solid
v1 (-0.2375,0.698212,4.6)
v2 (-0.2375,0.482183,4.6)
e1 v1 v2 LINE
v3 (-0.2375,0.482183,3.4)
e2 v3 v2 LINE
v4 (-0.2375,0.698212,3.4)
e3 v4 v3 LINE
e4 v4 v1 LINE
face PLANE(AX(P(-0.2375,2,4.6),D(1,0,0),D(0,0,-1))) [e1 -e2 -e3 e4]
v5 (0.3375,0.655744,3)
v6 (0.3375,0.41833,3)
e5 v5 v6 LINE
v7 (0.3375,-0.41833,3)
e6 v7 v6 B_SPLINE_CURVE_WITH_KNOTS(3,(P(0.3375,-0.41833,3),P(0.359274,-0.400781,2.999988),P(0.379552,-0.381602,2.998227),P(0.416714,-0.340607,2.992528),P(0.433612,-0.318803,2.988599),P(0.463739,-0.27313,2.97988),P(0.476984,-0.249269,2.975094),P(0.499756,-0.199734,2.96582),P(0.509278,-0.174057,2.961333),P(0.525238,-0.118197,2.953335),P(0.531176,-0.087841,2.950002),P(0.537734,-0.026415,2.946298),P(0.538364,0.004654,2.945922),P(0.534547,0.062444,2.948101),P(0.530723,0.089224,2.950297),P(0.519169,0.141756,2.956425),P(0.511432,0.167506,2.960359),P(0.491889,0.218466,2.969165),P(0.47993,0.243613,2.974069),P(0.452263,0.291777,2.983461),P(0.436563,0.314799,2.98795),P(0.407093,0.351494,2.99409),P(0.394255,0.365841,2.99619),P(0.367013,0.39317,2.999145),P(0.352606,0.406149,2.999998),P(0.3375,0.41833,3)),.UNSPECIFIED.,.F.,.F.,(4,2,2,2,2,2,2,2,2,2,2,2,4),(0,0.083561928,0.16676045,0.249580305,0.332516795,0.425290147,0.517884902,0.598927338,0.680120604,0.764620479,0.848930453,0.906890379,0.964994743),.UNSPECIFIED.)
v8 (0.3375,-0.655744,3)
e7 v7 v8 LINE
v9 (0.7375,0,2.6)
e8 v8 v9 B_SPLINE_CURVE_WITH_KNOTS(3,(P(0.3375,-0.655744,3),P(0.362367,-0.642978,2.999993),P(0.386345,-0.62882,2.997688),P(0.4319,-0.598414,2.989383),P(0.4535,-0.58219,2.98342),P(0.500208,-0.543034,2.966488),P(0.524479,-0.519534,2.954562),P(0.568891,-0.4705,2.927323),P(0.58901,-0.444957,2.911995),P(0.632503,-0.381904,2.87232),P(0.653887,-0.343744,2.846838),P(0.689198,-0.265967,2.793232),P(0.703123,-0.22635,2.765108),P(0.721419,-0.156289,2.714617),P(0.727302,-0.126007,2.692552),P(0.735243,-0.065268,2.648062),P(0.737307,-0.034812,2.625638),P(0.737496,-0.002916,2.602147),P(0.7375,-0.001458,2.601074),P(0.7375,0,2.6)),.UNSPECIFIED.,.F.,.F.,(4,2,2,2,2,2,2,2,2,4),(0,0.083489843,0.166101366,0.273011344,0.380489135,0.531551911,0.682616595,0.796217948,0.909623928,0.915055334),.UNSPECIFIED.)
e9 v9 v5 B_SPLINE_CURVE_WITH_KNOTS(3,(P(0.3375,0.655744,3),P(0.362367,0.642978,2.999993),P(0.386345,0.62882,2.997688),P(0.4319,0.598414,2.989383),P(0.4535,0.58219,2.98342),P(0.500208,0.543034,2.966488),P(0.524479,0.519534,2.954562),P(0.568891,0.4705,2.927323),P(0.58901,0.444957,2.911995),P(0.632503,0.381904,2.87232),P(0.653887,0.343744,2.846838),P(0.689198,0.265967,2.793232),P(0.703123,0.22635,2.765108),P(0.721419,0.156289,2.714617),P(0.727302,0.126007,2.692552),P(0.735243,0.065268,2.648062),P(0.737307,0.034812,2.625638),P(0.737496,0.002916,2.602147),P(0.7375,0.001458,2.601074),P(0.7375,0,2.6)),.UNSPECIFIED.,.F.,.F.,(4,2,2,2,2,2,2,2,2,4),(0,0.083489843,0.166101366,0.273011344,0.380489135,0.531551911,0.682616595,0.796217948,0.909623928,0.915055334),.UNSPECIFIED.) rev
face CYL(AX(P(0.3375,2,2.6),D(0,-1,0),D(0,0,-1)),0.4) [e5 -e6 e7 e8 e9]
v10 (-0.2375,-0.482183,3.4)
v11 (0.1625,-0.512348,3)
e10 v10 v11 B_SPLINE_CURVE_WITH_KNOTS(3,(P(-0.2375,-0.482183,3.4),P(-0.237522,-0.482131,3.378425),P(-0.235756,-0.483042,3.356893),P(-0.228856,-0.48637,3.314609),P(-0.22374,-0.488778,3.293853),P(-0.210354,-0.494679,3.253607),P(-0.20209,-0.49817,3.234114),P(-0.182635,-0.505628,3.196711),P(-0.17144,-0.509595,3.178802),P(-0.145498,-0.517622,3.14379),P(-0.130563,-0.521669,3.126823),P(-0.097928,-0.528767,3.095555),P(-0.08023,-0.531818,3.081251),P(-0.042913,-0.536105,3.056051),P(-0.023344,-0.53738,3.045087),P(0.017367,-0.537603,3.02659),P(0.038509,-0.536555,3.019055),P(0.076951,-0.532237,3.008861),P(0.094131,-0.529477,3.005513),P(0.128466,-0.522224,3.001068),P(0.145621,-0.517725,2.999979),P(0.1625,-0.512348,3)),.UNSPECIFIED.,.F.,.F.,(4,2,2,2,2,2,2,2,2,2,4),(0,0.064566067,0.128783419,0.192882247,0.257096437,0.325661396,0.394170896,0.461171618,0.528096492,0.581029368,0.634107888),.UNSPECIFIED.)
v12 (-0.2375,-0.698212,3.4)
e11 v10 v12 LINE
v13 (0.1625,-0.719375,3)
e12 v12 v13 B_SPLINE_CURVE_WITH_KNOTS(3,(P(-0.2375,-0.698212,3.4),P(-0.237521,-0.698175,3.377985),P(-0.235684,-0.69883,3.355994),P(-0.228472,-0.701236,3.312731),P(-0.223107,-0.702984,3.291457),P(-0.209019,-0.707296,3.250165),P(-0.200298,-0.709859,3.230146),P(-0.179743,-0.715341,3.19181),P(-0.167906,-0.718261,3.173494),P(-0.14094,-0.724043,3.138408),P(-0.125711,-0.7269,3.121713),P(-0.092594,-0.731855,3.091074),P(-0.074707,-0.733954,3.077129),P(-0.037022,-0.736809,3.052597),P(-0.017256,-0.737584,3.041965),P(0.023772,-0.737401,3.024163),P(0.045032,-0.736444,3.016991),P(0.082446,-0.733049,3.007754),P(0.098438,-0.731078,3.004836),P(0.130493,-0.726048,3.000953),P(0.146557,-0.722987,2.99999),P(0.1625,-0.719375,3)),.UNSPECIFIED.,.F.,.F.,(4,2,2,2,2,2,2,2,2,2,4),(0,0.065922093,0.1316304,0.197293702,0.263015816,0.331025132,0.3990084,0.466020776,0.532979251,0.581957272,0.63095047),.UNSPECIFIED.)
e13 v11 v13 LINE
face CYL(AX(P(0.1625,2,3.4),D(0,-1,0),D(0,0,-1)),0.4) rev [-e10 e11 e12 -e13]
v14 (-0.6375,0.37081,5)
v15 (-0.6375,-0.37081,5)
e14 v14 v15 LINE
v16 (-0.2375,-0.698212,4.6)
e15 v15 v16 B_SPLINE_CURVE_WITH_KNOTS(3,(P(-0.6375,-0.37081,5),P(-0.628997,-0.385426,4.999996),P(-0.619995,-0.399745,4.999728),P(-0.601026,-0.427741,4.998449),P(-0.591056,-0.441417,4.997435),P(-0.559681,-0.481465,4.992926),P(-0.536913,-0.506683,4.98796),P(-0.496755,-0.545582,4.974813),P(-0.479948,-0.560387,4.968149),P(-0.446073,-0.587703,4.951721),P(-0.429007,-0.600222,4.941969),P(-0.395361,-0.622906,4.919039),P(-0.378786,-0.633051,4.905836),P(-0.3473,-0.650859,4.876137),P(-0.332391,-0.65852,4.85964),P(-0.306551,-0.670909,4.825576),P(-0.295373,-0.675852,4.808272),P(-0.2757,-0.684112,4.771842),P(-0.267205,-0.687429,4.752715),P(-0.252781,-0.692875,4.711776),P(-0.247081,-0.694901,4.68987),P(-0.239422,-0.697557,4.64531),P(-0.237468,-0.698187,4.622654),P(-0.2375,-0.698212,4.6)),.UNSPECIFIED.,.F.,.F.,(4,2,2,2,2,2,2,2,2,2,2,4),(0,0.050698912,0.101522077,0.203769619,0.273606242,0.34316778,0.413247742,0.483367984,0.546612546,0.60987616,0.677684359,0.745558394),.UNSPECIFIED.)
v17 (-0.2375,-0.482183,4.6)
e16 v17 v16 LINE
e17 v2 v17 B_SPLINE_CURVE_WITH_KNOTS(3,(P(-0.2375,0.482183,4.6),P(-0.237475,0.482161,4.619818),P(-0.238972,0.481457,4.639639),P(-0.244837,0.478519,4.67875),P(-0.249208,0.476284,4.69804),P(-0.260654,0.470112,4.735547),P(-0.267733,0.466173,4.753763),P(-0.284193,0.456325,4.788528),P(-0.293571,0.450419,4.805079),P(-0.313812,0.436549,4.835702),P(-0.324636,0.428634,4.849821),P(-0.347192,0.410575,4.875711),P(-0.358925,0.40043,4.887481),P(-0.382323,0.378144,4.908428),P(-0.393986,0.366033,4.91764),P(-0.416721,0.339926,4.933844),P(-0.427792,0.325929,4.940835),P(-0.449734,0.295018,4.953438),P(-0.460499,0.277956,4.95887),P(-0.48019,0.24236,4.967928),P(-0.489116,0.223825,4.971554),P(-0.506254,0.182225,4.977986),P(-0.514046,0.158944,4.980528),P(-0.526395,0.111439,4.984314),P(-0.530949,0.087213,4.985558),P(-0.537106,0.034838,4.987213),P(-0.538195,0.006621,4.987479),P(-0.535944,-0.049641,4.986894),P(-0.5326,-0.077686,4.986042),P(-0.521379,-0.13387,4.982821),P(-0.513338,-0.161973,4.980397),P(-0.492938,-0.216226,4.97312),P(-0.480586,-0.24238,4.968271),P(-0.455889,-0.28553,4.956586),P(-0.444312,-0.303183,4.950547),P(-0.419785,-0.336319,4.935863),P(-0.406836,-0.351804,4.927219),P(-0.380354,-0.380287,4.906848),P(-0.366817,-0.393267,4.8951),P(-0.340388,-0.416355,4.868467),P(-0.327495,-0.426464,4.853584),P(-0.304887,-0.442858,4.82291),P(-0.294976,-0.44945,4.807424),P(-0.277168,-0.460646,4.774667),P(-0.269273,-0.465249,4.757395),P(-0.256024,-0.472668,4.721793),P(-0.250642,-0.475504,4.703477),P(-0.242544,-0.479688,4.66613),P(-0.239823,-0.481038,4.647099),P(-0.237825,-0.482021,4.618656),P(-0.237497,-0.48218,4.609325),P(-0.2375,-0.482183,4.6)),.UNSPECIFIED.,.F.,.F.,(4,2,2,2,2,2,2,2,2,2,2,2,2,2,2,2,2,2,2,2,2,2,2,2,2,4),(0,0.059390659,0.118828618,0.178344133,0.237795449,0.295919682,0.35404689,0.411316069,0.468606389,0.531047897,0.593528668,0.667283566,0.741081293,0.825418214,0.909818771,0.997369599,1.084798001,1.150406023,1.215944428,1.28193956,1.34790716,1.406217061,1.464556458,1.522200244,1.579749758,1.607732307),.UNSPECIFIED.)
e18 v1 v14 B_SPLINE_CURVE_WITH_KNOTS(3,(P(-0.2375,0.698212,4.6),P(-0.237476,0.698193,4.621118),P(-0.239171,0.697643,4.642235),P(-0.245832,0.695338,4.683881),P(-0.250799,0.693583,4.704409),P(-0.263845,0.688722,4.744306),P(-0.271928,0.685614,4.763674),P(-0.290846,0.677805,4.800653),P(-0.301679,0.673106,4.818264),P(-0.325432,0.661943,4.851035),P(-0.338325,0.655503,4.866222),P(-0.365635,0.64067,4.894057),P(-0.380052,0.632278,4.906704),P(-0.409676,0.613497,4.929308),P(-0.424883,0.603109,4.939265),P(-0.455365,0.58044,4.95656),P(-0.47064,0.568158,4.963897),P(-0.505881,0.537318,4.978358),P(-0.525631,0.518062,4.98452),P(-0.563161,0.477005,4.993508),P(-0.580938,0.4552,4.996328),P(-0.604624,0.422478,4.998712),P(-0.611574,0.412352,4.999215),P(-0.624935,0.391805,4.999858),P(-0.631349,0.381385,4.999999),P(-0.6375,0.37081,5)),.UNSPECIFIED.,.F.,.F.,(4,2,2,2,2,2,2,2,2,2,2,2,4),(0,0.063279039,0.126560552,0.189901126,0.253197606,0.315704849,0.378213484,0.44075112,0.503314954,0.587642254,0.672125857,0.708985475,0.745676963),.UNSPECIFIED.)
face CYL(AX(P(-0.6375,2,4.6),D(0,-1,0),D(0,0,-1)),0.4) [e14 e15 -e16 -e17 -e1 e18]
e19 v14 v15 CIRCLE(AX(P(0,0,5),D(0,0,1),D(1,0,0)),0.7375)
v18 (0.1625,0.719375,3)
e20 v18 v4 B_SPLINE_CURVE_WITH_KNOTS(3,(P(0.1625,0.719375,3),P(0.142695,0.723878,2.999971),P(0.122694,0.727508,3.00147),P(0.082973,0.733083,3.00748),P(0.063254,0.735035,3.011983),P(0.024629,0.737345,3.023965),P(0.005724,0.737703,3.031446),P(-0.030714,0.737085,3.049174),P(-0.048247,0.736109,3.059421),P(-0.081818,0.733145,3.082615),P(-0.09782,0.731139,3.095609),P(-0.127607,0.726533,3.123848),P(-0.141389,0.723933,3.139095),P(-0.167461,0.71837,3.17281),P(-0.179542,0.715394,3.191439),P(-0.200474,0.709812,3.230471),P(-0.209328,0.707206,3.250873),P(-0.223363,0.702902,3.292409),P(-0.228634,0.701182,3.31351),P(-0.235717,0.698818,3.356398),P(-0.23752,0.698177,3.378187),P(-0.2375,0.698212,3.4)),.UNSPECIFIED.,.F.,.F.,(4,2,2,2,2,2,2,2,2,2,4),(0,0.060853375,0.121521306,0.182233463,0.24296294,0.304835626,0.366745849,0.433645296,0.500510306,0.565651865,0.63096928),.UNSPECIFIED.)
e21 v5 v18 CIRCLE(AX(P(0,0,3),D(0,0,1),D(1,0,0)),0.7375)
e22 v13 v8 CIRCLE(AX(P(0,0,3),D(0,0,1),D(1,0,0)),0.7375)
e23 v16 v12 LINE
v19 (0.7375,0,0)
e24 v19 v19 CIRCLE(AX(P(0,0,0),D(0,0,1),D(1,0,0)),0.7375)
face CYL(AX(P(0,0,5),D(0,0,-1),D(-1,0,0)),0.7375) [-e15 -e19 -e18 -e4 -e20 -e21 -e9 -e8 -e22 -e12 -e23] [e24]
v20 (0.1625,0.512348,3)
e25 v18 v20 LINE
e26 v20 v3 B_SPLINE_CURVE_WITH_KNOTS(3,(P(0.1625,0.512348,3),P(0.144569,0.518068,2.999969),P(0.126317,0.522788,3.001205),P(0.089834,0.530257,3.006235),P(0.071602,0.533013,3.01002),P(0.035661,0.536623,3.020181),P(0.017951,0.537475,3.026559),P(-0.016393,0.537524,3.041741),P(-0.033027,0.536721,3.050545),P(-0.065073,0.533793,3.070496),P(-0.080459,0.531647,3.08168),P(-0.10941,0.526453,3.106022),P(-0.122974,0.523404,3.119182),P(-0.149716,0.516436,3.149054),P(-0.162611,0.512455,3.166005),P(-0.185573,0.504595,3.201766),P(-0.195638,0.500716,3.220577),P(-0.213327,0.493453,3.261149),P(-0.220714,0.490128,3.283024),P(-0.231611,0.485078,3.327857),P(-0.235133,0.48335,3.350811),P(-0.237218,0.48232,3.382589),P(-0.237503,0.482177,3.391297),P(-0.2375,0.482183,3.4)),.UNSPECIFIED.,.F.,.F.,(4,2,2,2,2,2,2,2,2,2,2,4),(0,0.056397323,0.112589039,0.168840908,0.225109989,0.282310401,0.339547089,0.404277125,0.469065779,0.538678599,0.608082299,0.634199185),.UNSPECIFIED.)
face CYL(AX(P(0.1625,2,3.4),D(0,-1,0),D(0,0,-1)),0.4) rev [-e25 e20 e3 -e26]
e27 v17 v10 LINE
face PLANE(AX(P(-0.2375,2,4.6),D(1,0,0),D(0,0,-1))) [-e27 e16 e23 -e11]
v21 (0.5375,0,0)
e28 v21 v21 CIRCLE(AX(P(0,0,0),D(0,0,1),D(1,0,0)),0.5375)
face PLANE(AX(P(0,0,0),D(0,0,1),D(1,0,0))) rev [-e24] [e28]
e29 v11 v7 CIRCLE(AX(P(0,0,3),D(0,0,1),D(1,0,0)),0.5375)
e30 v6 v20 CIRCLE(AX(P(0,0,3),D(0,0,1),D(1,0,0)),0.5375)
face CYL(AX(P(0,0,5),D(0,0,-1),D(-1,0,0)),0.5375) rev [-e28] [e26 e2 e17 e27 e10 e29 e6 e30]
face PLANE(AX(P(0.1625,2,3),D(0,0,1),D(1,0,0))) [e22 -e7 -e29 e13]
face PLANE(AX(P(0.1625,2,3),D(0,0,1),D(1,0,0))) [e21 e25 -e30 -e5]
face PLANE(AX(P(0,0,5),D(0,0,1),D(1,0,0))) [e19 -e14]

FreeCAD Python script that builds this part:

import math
import FreeCAD as App
import Part
import Sketcher

V = App.Vector
Q = App.Units.Quantity

doc = App.newDocument("Part")
params = doc.addObject("Spreadsheet::Sheet", "Params")
for row, (alias, value) in enumerate([
    ("pad1_length", "5 mm"),
    ("sketch2_radius", "0.4 mm"),
    ("sketch2_width", "0.1 mm"),
    ("sketch2_height", "1.2 mm"),
], start=1):
    params.set(f"A{row}", alias)
    params.set(f"B{row}", "=" + value)
    params.setAlias(f"B{row}", alias)

body = doc.addObject("PartDesign::Body", "Body")

# Sketch on XY plane
sketch1 = doc.addObject("Sketcher::SketchObject", "Sketch")
body.addObject(sketch1)
sketch1.AttachmentSupport = (doc.XY_Plane, [""])
sketch1.MapMode = "FlatFace"
sketch1.addGeometry(Part.Circle(V(0, 0, 0), V(0, 0, 1), 0.7375), False)
sketch1.addGeometry(Part.Circle(V(0, 0, 0), V(0, 0, 1), 0.5375), False)
sketch1.addConstraint(Sketcher.Constraint("Coincident", 0, 3, -1, 1))
sketch1.addConstraint(Sketcher.Constraint("Coincident", 1, 3, -1, 1))
sketch1.addConstraint(Sketcher.Constraint("Diameter", 0, Q("1.475 mm")))
sketch1.addConstraint(Sketcher.Constraint("Diameter", 1, Q("1.075 mm")))
pad1 = doc.addObject("PartDesign::Pad", "Pad")
body.addObject(pad1)
pad1.Profile = sketch1
pad1.setExpression("Length", "Params.pad1_length")

# Sketch on XZ plane
sketch2 = doc.addObject("Sketcher::SketchObject", "Sketch001")
body.addObject(sketch2)
sketch2.AttachmentSupport = (doc.XZ_Plane, [""])
sketch2.MapMode = "FlatFace"
sketch2.addGeometry(Part.LineSegment(V(-0.6375, 5, 0), V(-0.7375, 5, 0)), False)
sketch2.addGeometry(Part.LineSegment(V(-0.7375, 5, 0), V(-0.7375, 5.289304, 0)), False)
sketch2.addGeometry(Part.LineSegment(V(-0.7375, 5.289304, 0), V(1.040604, 5.289304, 0)), False)
sketch2.addGeometry(Part.LineSegment(V(1.040604, 5.289304, 0), V(1.040604, 2.290424, 0)), False)
sketch2.addGeometry(Part.LineSegment(V(1.040604, 2.290424, 0), V(0.7375, 2.290424, 0)), False)
sketch2.addGeometry(Part.LineSegment(V(0.7375, 2.290424, 0), V(0.7375, 2.6, 0)), False)
sketch2.addGeometry(Part.ArcOfCircle(Part.Circle(V(0.3375, 2.6, 0), V(0, 0, 1), 0.4), math.radians(0), math.radians(90)), False)
sketch2.addGeometry(Part.LineSegment(V(0.3375, 3, 0), V(0.1625, 3, 0)), False)
sketch2.addGeometry(Part.ArcOfCircle(Part.Circle(V(0.1625, 3.4, 0), V(0, 0, 1), 0.4), math.radians(-180), math.radians(-90)), False)
sketch2.addGeometry(Part.LineSegment(V(-0.2375, 3.4, 0), V(-0.2375, 4.6, 0)), False)
sketch2.addGeometry(Part.ArcOfCircle(Part.Circle(V(-0.6375, 4.6, 0), V(0, 0, 1), 0.4), math.radians(0), math.radians(90)), False)
sketch2.addConstraint(Sketcher.Constraint("Coincident", 0, 2, 1, 1))
sketch2.addConstraint(Sketcher.Constraint("Coincident", 1, 2, 2, 1))
sketch2.addConstraint(Sketcher.Constraint("Coincident", 2, 2, 3, 1))
sketch2.addConstraint(Sketcher.Constraint("Coincident", 3, 2, 4, 1))
sketch2.addConstraint(Sketcher.Constraint("Coincident", 4, 2, 5, 1))
sketch2.addConstraint(Sketcher.Constraint("Tangent", 5, 2, 6, 1))
sketch2.addConstraint(Sketcher.Constraint("Tangent", 6, 2, 7, 1))
sketch2.addConstraint(Sketcher.Constraint("Tangent", 7, 2, 8, 2))
sketch2.addConstraint(Sketcher.Constraint("Tangent", 8, 1, 9, 1))
sketch2.addConstraint(Sketcher.Constraint("Tangent", 9, 2, 10, 1))
sketch2.addConstraint(Sketcher.Constraint("Tangent", 10, 2, 0, 1))
sketch2.addConstraint(Sketcher.Constraint("Horizontal", 0))
sketch2.addConstraint(Sketcher.Constraint("Vertical", 1))
sketch2.addConstraint(Sketcher.Constraint("Horizontal", 2))
sketch2.addConstraint(Sketcher.Constraint("Vertical", 3))
sketch2.addConstraint(Sketcher.Constraint("Horizontal", 4))
sketch2.addConstraint(Sketcher.Constraint("Vertical", 5))
sketch2.addConstraint(Sketcher.Constraint("Horizontal", 7))
sketch2.addConstraint(Sketcher.Constraint("Vertical", 9))
sketch2.addConstraint(Sketcher.Constraint("Equal", 6, 8))
sketch2.addConstraint(Sketcher.Constraint("Equal", 8, 10))
sketch2.addConstraint(Sketcher.Constraint("Radius", 6, Q("0.4 mm")))
sketch2.addConstraint(Sketcher.Constraint("DistanceX", 0, 2, 0, 1, Q("0.1 mm")))
sketch2.addConstraint(Sketcher.Constraint("DistanceY", 9, 1, 9, 2, Q("1.2 mm")))
sketch2.addConstraint(Sketcher.Constraint("DistanceY", -1, 1, 0, 2, Q("5 mm")))
sketch2.addConstraint(Sketcher.Constraint("DistanceX", 7, 2, 7, 1, Q("0.175 mm")))
sketch2.addConstraint(Sketcher.Constraint("DistanceY", 3, 2, 3, 1, Q("2.99888 mm")))
sketch2.addConstraint(Sketcher.Constraint("DistanceX", -1, 1, 6, 3, Q("0.3375 mm")))
sketch2.addConstraint(Sketcher.Constraint("DistanceX", 2, 1, 2, 2, Q("1.778104 mm")))
sketch2.addConstraint(Sketcher.Constraint("DistanceY", 1, 1, 1, 2, Q("0.289304 mm")))
sketch2.setExpression("Constraints[21]", "Params.sketch2_radius")
sketch2.setExpression("Constraints[22]", "Params.sketch2_width")
sketch2.setExpression("Constraints[23]", "Params.sketch2_height")
pocket1 = doc.addObject("PartDesign::Pocket", "Pocket")
body.addObject(pocket1)
pocket1.Profile = sketch2
pocket1.Type = "ThroughAll"
pocket1.Midplane = True

doc.recompute()
